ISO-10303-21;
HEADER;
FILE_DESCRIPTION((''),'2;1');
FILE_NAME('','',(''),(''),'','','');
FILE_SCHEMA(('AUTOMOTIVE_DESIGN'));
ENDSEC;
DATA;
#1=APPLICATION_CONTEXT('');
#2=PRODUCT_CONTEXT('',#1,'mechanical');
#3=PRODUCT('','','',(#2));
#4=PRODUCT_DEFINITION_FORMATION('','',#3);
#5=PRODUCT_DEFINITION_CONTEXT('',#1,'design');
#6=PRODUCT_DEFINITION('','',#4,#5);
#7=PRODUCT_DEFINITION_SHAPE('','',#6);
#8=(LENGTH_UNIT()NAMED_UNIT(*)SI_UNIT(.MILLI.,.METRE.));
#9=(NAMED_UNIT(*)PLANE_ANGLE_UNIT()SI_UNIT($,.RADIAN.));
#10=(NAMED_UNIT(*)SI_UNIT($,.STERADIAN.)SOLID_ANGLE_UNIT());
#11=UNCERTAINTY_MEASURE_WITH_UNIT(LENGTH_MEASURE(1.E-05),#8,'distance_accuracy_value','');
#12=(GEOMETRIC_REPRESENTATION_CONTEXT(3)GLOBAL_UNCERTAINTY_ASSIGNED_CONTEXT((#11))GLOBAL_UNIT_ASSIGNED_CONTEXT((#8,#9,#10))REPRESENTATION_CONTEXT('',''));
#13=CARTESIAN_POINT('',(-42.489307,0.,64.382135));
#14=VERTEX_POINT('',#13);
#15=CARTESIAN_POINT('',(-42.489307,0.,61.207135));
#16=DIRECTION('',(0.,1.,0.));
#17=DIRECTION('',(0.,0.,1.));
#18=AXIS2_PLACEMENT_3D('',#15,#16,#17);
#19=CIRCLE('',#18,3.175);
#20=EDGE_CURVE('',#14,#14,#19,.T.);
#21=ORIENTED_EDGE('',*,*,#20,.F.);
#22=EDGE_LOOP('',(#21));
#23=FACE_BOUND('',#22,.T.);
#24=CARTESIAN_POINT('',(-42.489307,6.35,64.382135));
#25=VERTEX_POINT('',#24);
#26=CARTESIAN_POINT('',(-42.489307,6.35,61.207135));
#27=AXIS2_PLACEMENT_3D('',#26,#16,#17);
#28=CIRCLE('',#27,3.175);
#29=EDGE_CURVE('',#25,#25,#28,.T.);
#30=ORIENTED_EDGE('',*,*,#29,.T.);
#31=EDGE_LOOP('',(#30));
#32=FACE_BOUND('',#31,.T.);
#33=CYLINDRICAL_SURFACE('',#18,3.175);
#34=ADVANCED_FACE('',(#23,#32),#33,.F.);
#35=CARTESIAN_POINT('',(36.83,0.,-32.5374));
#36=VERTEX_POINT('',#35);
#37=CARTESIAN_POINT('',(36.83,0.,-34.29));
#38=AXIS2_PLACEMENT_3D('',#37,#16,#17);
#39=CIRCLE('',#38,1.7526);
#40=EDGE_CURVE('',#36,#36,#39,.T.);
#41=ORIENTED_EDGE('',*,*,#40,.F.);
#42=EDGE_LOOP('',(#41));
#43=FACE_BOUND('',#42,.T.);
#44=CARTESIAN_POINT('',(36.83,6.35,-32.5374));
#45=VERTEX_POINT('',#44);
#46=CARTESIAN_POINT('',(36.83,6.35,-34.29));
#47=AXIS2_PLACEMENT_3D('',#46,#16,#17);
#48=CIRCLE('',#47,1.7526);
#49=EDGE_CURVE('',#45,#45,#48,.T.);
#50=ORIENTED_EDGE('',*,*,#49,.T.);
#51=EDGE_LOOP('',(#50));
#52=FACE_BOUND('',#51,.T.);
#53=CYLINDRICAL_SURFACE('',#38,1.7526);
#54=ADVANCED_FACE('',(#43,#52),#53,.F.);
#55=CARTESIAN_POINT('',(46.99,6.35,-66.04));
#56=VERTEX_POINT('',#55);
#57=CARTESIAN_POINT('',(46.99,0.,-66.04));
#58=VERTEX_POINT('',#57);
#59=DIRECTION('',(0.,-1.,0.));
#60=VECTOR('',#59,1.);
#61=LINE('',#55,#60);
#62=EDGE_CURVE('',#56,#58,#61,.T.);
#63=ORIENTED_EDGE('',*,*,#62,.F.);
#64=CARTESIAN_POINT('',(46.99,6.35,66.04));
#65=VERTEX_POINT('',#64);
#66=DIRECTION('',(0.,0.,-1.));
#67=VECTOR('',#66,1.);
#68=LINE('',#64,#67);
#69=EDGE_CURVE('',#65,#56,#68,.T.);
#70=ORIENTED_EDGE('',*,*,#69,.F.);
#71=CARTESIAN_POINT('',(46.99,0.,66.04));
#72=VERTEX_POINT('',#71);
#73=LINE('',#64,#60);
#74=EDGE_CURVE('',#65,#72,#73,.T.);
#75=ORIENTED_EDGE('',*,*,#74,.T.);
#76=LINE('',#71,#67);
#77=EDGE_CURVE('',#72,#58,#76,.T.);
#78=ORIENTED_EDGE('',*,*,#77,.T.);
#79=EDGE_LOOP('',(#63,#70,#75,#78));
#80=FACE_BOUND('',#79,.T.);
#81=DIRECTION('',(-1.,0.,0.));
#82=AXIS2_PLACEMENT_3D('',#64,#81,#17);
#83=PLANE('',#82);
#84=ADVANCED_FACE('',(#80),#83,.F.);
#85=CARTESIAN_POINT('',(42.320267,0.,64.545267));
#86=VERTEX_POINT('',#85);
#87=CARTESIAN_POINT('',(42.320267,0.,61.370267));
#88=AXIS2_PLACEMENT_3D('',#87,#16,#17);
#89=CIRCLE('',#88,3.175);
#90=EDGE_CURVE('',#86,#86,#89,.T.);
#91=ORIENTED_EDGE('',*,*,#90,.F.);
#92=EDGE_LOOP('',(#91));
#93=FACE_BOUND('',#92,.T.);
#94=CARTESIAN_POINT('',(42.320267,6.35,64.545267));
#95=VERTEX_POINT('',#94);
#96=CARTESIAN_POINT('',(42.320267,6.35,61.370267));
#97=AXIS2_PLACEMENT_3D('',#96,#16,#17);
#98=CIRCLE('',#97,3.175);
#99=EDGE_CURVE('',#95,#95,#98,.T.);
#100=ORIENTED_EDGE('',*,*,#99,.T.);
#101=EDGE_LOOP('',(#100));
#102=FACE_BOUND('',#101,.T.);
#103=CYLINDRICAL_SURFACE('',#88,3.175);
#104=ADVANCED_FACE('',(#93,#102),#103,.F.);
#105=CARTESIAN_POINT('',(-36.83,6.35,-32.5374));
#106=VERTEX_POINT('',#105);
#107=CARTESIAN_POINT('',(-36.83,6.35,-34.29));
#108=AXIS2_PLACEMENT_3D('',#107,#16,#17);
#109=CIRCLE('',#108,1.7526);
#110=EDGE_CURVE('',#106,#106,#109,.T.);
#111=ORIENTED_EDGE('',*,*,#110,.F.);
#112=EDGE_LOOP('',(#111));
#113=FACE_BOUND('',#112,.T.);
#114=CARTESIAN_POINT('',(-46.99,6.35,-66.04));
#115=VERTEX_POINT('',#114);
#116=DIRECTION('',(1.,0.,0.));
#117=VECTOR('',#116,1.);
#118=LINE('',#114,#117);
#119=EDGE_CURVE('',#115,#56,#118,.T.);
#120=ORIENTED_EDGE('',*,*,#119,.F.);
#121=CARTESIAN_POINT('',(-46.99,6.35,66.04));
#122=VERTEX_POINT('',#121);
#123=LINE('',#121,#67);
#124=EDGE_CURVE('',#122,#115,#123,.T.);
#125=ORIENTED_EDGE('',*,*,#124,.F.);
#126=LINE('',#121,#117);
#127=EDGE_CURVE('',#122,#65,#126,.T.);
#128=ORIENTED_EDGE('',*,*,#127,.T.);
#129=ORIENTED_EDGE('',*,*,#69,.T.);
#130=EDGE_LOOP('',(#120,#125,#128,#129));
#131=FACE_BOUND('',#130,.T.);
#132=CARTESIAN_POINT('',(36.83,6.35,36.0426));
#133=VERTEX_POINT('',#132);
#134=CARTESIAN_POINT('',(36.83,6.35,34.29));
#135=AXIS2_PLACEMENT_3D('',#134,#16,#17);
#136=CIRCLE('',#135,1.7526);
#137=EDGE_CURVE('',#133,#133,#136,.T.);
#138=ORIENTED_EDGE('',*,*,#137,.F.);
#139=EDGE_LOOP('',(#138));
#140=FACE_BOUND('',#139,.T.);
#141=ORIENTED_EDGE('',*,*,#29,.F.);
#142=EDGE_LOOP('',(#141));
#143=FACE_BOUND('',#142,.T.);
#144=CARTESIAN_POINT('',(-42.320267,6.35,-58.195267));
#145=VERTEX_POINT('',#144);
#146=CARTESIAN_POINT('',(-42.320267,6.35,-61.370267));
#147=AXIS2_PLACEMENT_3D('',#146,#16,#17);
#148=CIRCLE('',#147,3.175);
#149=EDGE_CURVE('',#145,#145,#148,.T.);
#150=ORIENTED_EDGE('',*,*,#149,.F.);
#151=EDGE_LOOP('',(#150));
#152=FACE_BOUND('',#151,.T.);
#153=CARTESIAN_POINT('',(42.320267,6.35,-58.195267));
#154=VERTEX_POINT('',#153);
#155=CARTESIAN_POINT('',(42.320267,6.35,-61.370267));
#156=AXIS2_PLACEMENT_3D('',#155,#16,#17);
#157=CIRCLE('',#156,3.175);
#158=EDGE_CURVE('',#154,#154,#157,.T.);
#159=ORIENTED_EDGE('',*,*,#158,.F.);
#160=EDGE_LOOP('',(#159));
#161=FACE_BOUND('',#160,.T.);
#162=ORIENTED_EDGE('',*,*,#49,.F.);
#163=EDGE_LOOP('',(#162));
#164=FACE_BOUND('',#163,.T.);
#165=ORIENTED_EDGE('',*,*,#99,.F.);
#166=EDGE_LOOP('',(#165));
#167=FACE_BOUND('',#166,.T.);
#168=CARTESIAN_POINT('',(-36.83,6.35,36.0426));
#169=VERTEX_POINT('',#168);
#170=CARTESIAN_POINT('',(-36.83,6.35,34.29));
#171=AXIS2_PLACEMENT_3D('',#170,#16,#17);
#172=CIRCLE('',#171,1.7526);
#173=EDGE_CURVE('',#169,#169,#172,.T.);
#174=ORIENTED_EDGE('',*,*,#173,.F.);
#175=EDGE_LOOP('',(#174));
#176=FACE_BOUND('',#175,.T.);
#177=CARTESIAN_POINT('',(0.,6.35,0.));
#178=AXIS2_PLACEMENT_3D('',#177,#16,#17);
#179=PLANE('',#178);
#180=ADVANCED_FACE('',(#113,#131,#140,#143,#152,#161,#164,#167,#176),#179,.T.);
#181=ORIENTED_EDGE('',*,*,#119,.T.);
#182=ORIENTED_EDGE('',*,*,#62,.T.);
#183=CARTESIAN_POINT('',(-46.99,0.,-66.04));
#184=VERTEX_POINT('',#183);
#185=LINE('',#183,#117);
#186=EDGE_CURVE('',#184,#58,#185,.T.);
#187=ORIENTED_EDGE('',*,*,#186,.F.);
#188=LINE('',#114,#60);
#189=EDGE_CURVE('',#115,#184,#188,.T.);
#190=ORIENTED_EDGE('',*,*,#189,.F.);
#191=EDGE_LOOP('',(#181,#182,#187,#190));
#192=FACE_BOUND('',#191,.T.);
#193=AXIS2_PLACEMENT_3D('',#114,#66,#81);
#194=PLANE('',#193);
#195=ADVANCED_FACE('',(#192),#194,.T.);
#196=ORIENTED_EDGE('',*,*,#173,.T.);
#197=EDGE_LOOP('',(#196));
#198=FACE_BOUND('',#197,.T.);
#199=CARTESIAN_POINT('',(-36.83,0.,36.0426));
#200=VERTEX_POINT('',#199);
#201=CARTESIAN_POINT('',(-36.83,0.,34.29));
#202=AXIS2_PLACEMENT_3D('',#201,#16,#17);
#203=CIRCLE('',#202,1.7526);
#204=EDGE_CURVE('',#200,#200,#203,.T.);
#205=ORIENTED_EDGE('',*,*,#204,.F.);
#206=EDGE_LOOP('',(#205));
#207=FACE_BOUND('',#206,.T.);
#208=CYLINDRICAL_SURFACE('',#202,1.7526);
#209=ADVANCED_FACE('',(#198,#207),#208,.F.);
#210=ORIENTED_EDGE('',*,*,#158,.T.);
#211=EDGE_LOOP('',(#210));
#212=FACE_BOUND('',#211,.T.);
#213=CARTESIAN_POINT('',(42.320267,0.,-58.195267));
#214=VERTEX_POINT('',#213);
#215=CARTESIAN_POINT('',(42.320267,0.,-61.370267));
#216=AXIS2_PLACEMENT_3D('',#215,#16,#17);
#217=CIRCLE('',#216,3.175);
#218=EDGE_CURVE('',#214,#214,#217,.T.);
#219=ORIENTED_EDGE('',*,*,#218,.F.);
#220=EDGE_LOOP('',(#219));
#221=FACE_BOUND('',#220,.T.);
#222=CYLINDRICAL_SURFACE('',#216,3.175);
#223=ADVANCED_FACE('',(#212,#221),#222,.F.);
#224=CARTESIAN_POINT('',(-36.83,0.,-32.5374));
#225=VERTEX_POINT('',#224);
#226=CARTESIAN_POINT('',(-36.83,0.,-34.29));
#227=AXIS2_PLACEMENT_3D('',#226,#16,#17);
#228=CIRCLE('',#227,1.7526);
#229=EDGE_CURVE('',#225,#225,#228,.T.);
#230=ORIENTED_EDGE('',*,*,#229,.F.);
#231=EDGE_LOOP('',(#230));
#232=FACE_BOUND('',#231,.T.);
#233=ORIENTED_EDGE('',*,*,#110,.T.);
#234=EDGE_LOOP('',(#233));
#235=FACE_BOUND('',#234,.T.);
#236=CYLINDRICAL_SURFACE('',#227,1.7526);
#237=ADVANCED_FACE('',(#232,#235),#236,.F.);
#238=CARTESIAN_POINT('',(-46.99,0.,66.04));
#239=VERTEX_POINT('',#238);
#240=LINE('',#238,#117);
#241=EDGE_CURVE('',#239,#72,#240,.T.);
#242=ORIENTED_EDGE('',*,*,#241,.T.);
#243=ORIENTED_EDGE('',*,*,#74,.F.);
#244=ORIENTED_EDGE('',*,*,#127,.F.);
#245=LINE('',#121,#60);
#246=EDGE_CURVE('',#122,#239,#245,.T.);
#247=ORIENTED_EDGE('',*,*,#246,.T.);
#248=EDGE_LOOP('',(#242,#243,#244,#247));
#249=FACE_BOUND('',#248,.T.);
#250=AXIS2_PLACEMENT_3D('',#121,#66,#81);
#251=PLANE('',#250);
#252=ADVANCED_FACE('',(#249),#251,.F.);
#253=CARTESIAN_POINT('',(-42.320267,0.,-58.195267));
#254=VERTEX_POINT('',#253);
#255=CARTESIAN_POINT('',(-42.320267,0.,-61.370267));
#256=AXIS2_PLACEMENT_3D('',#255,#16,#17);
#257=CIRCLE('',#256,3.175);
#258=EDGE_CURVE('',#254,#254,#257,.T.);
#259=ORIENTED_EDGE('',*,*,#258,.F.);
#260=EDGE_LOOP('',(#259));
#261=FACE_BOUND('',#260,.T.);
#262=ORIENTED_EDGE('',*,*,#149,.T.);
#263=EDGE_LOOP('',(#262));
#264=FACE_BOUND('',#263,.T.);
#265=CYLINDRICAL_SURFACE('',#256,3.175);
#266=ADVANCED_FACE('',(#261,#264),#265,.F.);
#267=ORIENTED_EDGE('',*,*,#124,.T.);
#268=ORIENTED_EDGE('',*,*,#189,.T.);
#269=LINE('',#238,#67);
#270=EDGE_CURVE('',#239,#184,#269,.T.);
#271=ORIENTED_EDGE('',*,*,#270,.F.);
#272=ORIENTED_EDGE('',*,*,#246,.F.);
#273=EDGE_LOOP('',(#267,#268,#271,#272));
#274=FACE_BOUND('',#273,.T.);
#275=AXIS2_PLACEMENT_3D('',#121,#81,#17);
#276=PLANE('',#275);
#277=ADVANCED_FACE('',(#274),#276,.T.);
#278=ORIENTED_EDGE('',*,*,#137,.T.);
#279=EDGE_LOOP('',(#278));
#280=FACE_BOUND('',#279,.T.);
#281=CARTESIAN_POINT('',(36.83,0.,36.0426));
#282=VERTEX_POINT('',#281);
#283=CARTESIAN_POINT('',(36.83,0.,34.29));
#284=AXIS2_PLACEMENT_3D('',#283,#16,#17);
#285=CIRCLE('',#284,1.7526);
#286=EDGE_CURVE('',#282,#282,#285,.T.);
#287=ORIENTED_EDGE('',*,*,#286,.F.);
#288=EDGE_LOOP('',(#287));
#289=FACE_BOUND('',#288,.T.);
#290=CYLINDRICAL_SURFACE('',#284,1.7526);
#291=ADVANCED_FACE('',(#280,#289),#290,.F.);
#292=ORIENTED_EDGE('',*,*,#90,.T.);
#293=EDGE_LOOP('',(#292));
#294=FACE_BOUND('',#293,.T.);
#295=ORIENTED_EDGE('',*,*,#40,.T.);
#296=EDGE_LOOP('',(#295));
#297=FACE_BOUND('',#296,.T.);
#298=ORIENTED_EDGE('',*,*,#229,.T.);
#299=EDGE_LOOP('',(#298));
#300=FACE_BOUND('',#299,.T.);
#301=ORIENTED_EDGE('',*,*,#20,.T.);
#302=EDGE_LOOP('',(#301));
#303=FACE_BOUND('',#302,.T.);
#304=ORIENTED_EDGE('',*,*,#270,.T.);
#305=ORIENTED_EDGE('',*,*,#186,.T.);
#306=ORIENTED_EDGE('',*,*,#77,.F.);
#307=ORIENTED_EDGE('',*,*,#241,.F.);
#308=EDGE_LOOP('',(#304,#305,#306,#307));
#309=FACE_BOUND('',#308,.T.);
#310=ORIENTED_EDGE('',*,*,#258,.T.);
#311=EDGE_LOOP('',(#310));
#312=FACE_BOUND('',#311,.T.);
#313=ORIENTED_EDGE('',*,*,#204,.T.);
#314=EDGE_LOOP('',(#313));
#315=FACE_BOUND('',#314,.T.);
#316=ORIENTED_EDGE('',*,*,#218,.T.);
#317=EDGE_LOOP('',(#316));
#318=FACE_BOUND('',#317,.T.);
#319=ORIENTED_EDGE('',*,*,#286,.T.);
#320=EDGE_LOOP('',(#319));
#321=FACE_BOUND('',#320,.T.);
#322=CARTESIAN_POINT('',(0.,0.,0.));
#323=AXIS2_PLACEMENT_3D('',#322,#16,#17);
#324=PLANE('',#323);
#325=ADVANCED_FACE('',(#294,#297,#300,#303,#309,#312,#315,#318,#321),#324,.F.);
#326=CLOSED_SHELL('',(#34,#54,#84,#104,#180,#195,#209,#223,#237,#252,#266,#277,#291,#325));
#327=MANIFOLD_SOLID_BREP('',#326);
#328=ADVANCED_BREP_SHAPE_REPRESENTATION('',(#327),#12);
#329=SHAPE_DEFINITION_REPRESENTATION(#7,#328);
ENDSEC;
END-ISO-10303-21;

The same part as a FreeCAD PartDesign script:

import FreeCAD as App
import Part
import Sketcher
Q = App.Units.Quantity

doc = App.newDocument("Part")
params = doc.addObject("Spreadsheet::Sheet", "Params")
for row, (alias, value) in enumerate([
    ("sketch1_width", "3.7 in"),
    ("sketch1_height", "5.2 in"),
    ("pad1_length", "0.25 in"),
    ("sketch2_diameter", "0.25 in"),
    ("pocket1_length", "0.25 in"),
    ("sketch3_diameter", "0.138 in"),
    ("pocket2_length", "0.25 in"),
], start=1):
    params.set(f"A{row}", alias)
    params.set(f"B{row}", "=" + value)
    params.setAlias(f"B{row}", alias)

body = doc.addObject("PartDesign::Body", "Body")

# Sketch on XZ plane
sketch1 = doc.addObject("Sketcher::SketchObject", "Sketch")
body.addObject(sketch1)
sketch1.AttachmentSupport = (doc.XZ_Plane, [""])
sketch1.MapMode = "FlatFace"
sketch1.addGeometry(Part.LineSegment(App.Vector(-47, -66, 0), App.Vector(-47, 66, 0)), False)
sketch1.addGeometry(Part.LineSegment(App.Vector(-47, 66, 0), App.Vector(47, 66, 0)), False)
sketch1.addGeometry(Part.LineSegment(App.Vector(47, 66, 0), App.Vector(47, -66, 0)), False)
sketch1.addGeometry(Part.LineSegment(App.Vector(47, -66, 0), App.Vector(-47, -66, 0)), False)
sketch1.addConstraint(Sketcher.Constraint("Coincident", 0, 2, 1, 1))
sketch1.addConstraint(Sketcher.Constraint("Coincident", 1, 2, 2, 1))
sketch1.addConstraint(Sketcher.Constraint("Coincident", 2, 2, 3, 1))
sketch1.addConstraint(Sketcher.Constraint("Coincident", 3, 2, 0, 1))
sketch1.addConstraint(Sketcher.Constraint("Vertical", 0))
sketch1.addConstraint(Sketcher.Constraint("Horizontal", 1))
sketch1.addConstraint(Sketcher.Constraint("Vertical", 2))
sketch1.addConstraint(Sketcher.Constraint("Horizontal", 3))
sketch1.addConstraint(Sketcher.Constraint("Symmetric", 0, 2, 2, 2, -1, 1))
sketch1.addConstraint(Sketcher.Constraint("DistanceX", 1, 1, 1, 2, Q("3.7 in")))
sketch1.addConstraint(Sketcher.Constraint("DistanceY", 0, 1, 0, 2, Q("5.2 in")))
sketch1.setExpression("Constraints[9]", "Params.sketch1_width")
sketch1.setExpression("Constraints[10]", "Params.sketch1_height")
pad1 = doc.addObject("PartDesign::Pad", "Pad")
body.addObject(pad1)
pad1.Profile = sketch1
pad1.setExpression("Length", "Params.pad1_length")
pad1.Reversed = True

# Sketch on XZ plane
sketch2 = doc.addObject("Sketcher::SketchObject", "Sketch001")
body.addObject(sketch2)
sketch2.AttachmentSupport = (doc.XZ_Plane, [""])
sketch2.MapMode = "FlatFace"
sketch2.AttachmentOffset = App.Placement(App.Vector(0, 0, -0.25 * 25.4), App.Rotation())
sketch2.addGeometry(Part.Circle(App.Vector(-42.3, -61.4, 0), App.Vector(0, 0, 1), 3.2), False)
sketch2.addGeometry(Part.Circle(App.Vector(42.3, -61.4, 0), App.Vector(0, 0, 1), 3.2), False)
sketch2.addGeometry(Part.Circle(App.Vector(-42.5, 61.2, 0), App.Vector(0, 0, 1), 3.2), False)
sketch2.addGeometry(Part.Circle(App.Vector(42.3, 61.4, 0), App.Vector(0, 0, 1), 3.2), False)
sketch2.addConstraint(Sketcher.Constraint("Equal", 0, 1))
sketch2.addConstraint(Sketcher.Constraint("Equal", 1, 2))
sketch2.addConstraint(Sketcher.Constraint("Equal", 2, 3))
sketch2.addConstraint(Sketcher.Constraint("Symmetric", 0, 3, 3, 3, -1, 1))
sketch2.addConstraint(Sketcher.Constraint("Symmetric", 0, 3, 1, 3, -2))
sketch2.addConstraint(Sketcher.Constraint("Diameter", 0, Q("0.25 in")))
sketch2.addConstraint(Sketcher.Constraint("DistanceX", 2, 3, 0, 3, Q("0.16904 mm")))
sketch2.addConstraint(Sketcher.Constraint("DistanceY", 2, 3, 3, 3, Q("0.163131 mm")))
sketch2.addConstraint(Sketcher.Constraint("DistanceX", 0, 3, -1, 1, Q("42.320267 mm")))
sketch2.addConstraint(Sketcher.Constraint("DistanceY", 0, 3, -1, 1, Q("61.370267 mm")))
sketch2.setExpression("Constraints[5]", "Params.sketch2_diameter")
pocket1 = doc.addObject("PartDesign::Pocket", "Pocket")
body.addObject(pocket1)
pocket1.Profile = sketch2
pocket1.setExpression("Length", "Params.pocket1_length")
pocket1.Reversed = True

# Sketch on XZ plane
sketch3 = doc.addObject("Sketcher::SketchObject", "Sketch002")
body.addObject(sketch3)
sketch3.AttachmentSupport = (doc.XZ_Plane, [""])
sketch3.MapMode = "FlatFace"
sketch3.AttachmentOffset = App.Placement(App.Vector(0, 0, -0.25 * 25.4), App.Rotation())
sketch3.addGeometry(Part.Circle(App.Vector(-36.8, -34.3, 0), App.Vector(0, 0, 1), 1.8), False)
sketch3.addGeometry(Part.Circle(App.Vector(36.8, -34.3, 0), App.Vector(0, 0, 1), 1.8), False)
sketch3.addGeometry(Part.Circle(App.Vector(-36.8, 34.3, 0), App.Vector(0, 0, 1), 1.8), False)
sketch3.addGeometry(Part.Circle(App.Vector(36.8, 34.3, 0), App.Vector(0, 0, 1), 1.8), False)
sketch3.addConstraint(Sketcher.Constraint("Equal", 0, 1))
sketch3.addConstraint(Sketcher.Constraint("Equal", 1, 2))
sketch3.addConstraint(Sketcher.Constraint("Equal", 2, 3))
sketch3.addConstraint(Sketcher.Constraint("Symmetric", 1, 3, 2, 3, -1, 1))
sketch3.addConstraint(Sketcher.Constraint("Symmetric", 0, 3, 3, 3, -1, 1))
sketch3.addConstraint(Sketcher.Constraint("Symmetric", 0, 3, 1, 3, -2))
sketch3.addConstraint(Sketcher.Constraint("Diameter", 0, Q("0.138 in")))
sketch3.addConstraint(Sketcher.Constraint("DistanceX", 0, 3, 1, 3, Q("2.9 in")))
sketch3.addConstraint(Sketcher.Constraint("DistanceY", 0, 3, 2, 3, Q("2.7 in")))
sketch3.setExpression("Constraints[6]", "Params.sketch3_diameter")
pocket2 = doc.addObject("PartDesign::Pocket", "Pocket001")
body.addObject(pocket2)
pocket2.Profile = sketch3
pocket2.setExpression("Length", "Params.pocket2_length")
pocket2.Reversed = True

doc.recompute()
